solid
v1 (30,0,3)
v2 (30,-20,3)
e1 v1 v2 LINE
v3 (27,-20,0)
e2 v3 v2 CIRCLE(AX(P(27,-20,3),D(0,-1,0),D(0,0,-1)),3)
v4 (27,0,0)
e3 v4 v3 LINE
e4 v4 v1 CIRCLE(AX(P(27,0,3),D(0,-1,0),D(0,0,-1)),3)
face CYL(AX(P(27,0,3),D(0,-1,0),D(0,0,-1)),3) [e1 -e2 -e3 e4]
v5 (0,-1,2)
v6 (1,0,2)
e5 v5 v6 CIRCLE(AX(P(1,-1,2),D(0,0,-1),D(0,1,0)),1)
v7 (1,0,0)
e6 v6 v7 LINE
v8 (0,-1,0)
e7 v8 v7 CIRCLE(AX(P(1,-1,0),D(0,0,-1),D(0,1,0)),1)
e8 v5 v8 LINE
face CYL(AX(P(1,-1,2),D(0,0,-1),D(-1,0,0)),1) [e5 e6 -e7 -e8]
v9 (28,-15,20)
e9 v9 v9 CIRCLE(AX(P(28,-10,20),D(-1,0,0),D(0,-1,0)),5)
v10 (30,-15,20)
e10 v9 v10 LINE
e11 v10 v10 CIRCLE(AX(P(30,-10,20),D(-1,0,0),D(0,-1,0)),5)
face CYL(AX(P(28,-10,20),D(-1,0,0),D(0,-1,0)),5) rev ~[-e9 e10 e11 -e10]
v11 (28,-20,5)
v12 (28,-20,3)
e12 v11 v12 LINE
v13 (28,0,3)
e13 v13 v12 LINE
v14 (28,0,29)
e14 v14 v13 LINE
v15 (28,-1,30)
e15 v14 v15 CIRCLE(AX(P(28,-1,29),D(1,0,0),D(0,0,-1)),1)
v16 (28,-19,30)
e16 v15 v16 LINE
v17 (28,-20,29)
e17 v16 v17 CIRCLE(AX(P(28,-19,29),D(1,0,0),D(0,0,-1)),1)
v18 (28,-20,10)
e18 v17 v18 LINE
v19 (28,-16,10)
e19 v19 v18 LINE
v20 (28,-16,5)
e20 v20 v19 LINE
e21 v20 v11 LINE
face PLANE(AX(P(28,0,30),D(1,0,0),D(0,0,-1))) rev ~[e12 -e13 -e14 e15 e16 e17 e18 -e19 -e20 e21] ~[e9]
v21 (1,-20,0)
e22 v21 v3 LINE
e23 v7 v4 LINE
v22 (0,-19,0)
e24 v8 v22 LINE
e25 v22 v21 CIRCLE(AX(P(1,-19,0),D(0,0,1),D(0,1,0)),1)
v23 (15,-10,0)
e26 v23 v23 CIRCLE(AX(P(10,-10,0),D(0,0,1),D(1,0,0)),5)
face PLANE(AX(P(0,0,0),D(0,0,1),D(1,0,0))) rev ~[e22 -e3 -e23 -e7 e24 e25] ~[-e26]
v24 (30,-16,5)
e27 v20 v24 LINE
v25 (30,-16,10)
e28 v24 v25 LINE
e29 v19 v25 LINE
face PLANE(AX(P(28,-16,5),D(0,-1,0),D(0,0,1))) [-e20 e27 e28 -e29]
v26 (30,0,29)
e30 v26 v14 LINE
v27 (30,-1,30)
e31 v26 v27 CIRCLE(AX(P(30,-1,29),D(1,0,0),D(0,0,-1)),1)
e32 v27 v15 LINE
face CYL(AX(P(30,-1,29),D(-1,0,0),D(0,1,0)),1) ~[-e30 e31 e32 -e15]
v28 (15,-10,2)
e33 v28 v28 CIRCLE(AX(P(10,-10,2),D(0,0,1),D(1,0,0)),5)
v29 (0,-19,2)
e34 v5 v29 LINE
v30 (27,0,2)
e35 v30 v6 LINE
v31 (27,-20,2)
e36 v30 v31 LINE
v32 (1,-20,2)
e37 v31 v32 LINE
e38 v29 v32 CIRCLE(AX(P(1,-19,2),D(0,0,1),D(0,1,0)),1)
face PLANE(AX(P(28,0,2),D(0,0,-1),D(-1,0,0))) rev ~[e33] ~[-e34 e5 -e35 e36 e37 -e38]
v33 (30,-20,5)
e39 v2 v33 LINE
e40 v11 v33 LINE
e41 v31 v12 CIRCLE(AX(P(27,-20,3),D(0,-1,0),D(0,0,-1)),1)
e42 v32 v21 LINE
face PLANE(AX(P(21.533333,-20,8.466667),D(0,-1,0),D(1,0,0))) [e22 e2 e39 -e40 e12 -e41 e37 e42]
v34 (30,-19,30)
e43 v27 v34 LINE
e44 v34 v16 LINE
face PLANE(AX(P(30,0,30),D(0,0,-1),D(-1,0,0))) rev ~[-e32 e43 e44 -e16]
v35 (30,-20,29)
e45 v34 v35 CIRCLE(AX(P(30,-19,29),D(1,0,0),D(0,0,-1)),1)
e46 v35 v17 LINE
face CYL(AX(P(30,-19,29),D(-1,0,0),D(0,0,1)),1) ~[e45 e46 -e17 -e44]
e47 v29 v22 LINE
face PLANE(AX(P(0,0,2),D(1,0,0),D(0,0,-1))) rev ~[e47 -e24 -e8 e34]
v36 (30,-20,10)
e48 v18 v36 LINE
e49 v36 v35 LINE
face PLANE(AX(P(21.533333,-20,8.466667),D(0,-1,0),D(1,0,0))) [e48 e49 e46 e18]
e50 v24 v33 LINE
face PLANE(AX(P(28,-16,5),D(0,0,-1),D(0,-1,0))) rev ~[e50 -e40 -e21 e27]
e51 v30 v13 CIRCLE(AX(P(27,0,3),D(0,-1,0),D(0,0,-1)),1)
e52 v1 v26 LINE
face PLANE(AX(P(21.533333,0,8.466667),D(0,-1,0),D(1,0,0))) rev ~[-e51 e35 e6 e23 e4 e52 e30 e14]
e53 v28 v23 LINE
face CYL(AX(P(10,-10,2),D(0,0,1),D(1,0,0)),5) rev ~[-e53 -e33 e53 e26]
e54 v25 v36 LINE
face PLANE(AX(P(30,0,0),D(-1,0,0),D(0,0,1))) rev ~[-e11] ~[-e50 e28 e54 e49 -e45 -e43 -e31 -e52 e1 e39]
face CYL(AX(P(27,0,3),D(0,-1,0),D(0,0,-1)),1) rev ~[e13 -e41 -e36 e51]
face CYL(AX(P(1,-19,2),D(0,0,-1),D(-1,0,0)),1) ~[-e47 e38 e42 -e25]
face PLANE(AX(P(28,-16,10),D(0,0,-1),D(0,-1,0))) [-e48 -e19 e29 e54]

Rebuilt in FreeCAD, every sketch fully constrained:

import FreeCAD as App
import Part
import Sketcher

V = App.Vector


def edges_at(feature, points):
    """Names of the edges that pass closest to the given points."""
    edges = feature.Shape.Edges
    near = lambda p: min(range(len(edges)), key=lambda i: edges[i].distToShape(Part.Vertex(*p))[0])
    return sorted({f"Edge{near(p) + 1}" for p in points})


def add_polygon(sketch, points):
    """Adds a closed chain of lines whose ends are joined by coincident constraints."""
    first, n = sketch.GeometryCount, len(points)
    for a, b in zip(points, points[1:] + points[:1]):
        sketch.addGeometry(Part.LineSegment(App.Vector(*a, 0), App.Vector(*b, 0)), False)
    for i in range(n):
        sketch.addConstraint(Sketcher.Constraint("Coincident", first + i, 2, first + (i + 1) % n, 1))

doc = App.newDocument("Part")
body = doc.addObject("PartDesign::Body", "Body")

sketch1 = body.newObject("Sketcher::SketchObject", "Sketch")
sketch1.AttachmentSupport = (doc.getObject("XZ_Plane"), [""])
sketch1.MapMode = "FlatFace"
add_polygon(sketch1, [(0, 2), (0, 0), (30, 0), (30, 30), (28, 30), (28, 2)])
sketch1.addConstraint(Sketcher.Constraint("Vertical", 0))
sketch1.addConstraint(Sketcher.Constraint("Horizontal", 1))
sketch1.addConstraint(Sketcher.Constraint("Vertical", 2))
sketch1.addConstraint(Sketcher.Constraint("Horizontal", 3))
sketch1.addConstraint(Sketcher.Constraint("Vertical", 4))
sketch1.addConstraint(Sketcher.Constraint("Horizontal", 5))
sketch1.addConstraint(Sketcher.Constraint("Coincident", 0, 2, -1, 1))
sketch1.addConstraint(Sketcher.Constraint("Equal", 3, 0))
sketch1.addConstraint(Sketcher.Constraint("Equal", 1, 2))
sketch1.addConstraint(Sketcher.Constraint("DistanceX", 1, 1, 1, 2, 30.0))
sketch1.addConstraint(Sketcher.Constraint("DistanceX", 3, 2, 3, 1, 2.0))
pad1 = body.newObject("PartDesign::Pad", "Pad")
pad1.Profile = sketch1
pad1.Length = 20

sketch2 = body.newObject("Sketcher::SketchObject", "Sketch001")
sketch2.AttachmentSupport = (doc.getObject("XY_Plane"), [""])
sketch2.MapMode = "FlatFace"
sketch2.AttachmentOffset = App.Placement(V(0, 0, 2), App.Rotation())
sketch2.addGeometry(Part.Circle(V(10, -10, 0), V(0, 0, 1), 5), False)
sketch2.addConstraint(Sketcher.Constraint("Diameter", 0, 10.0))
sketch2.addConstraint(Sketcher.Constraint("DistanceX", -1, 1, 0, 3, 10.0))
sketch2.addConstraint(Sketcher.Constraint("DistanceY", 0, 3, -1, 1, 10.0))
pocket1 = body.newObject("PartDesign::Pocket", "Pocket")
pocket1.Profile = sketch2
pocket1.Type = "ThroughAll"

sketch3 = body.newObject("Sketcher::SketchObject", "Sketch002")
sketch3.AttachmentSupport = (doc.getObject("YZ_Plane"), [""])
sketch3.MapMode = "FlatFace"
sketch3.AttachmentOffset = App.Placement(V(0, 0, 28), App.Rotation())
sketch3.addGeometry(Part.Circle(V(-10, 20, 0), V(0, 0, 1), 5), False)
sketch3.addConstraint(Sketcher.Constraint("Diameter", 0, 10.0))
sketch3.addConstraint(Sketcher.Constraint("DistanceX", 0, 3, -1, 1, 10.0))
sketch3.addConstraint(Sketcher.Constraint("DistanceY", -1, 1, 0, 3, 20.0))
pocket2 = body.newObject("PartDesign::Pocket", "Pocket001")
pocket2.Profile = sketch3
pocket2.Type = "ThroughAll"
pocket2.Reversed = True

sketch4 = body.newObject("Sketcher::SketchObject", "Sketch003")
sketch4.AttachmentSupport = (doc.getObject("YZ_Plane"), [""])
sketch4.MapMode = "FlatFace"
sketch4.AttachmentOffset = App.Placement(V(0, 0, 28), App.Rotation())
add_polygon(sketch4, [(-16, 10), (-16, 5), (-20, 5), (-20, 10)])
sketch4.addConstraint(Sketcher.Constraint("Vertical", 0))
sketch4.addConstraint(Sketcher.Constraint("Horizontal", 1))
sketch4.addConstraint(Sketcher.Constraint("Vertical", 2))
sketch4.addConstraint(Sketcher.Constraint("Horizontal", 3))
sketch4.addConstraint(Sketcher.Constraint("DistanceX", 1, 2, 1, 1, 4.0))
sketch4.addConstraint(Sketcher.Constraint("DistanceY", 0, 2, 0, 1, 5.0))
sketch4.addConstraint(Sketcher.Constraint("DistanceX", 0, 2, -1, 1, 16.0))
sketch4.addConstraint(Sketcher.Constraint("DistanceY", -1, 1, 0, 2, 5.0))
pocket3 = body.newObject("PartDesign::Pocket", "Pocket002")
pocket3.Profile = sketch4
pocket3.Type = "ThroughAll"
pocket3.Reversed = True
doc.recompute()

fillet = body.newObject("PartDesign::Fillet", "Fillet")
fillet.Base = (pocket3, edges_at(pocket3, [
    (29, 0, 30),
    (29, -20, 30),
    (0, -20, 1),
    (0, 0, 1),
]))
fillet.Radius = 1
doc.recompute()

fillet2 = body.newObject("PartDesign::Fillet", "Fillet001")
fillet2.Base = (fillet, edges_at(fillet, [(28, -10, 2)]))
fillet2.Radius = 1
doc.recompute()

fillet3 = body.newObject("PartDesign::Fillet", "Fillet002")
fillet3.Base = (fillet2, edges_at(fillet2, [(30, -10, 0)]))
fillet3.Radius = 3

doc.recompute()
